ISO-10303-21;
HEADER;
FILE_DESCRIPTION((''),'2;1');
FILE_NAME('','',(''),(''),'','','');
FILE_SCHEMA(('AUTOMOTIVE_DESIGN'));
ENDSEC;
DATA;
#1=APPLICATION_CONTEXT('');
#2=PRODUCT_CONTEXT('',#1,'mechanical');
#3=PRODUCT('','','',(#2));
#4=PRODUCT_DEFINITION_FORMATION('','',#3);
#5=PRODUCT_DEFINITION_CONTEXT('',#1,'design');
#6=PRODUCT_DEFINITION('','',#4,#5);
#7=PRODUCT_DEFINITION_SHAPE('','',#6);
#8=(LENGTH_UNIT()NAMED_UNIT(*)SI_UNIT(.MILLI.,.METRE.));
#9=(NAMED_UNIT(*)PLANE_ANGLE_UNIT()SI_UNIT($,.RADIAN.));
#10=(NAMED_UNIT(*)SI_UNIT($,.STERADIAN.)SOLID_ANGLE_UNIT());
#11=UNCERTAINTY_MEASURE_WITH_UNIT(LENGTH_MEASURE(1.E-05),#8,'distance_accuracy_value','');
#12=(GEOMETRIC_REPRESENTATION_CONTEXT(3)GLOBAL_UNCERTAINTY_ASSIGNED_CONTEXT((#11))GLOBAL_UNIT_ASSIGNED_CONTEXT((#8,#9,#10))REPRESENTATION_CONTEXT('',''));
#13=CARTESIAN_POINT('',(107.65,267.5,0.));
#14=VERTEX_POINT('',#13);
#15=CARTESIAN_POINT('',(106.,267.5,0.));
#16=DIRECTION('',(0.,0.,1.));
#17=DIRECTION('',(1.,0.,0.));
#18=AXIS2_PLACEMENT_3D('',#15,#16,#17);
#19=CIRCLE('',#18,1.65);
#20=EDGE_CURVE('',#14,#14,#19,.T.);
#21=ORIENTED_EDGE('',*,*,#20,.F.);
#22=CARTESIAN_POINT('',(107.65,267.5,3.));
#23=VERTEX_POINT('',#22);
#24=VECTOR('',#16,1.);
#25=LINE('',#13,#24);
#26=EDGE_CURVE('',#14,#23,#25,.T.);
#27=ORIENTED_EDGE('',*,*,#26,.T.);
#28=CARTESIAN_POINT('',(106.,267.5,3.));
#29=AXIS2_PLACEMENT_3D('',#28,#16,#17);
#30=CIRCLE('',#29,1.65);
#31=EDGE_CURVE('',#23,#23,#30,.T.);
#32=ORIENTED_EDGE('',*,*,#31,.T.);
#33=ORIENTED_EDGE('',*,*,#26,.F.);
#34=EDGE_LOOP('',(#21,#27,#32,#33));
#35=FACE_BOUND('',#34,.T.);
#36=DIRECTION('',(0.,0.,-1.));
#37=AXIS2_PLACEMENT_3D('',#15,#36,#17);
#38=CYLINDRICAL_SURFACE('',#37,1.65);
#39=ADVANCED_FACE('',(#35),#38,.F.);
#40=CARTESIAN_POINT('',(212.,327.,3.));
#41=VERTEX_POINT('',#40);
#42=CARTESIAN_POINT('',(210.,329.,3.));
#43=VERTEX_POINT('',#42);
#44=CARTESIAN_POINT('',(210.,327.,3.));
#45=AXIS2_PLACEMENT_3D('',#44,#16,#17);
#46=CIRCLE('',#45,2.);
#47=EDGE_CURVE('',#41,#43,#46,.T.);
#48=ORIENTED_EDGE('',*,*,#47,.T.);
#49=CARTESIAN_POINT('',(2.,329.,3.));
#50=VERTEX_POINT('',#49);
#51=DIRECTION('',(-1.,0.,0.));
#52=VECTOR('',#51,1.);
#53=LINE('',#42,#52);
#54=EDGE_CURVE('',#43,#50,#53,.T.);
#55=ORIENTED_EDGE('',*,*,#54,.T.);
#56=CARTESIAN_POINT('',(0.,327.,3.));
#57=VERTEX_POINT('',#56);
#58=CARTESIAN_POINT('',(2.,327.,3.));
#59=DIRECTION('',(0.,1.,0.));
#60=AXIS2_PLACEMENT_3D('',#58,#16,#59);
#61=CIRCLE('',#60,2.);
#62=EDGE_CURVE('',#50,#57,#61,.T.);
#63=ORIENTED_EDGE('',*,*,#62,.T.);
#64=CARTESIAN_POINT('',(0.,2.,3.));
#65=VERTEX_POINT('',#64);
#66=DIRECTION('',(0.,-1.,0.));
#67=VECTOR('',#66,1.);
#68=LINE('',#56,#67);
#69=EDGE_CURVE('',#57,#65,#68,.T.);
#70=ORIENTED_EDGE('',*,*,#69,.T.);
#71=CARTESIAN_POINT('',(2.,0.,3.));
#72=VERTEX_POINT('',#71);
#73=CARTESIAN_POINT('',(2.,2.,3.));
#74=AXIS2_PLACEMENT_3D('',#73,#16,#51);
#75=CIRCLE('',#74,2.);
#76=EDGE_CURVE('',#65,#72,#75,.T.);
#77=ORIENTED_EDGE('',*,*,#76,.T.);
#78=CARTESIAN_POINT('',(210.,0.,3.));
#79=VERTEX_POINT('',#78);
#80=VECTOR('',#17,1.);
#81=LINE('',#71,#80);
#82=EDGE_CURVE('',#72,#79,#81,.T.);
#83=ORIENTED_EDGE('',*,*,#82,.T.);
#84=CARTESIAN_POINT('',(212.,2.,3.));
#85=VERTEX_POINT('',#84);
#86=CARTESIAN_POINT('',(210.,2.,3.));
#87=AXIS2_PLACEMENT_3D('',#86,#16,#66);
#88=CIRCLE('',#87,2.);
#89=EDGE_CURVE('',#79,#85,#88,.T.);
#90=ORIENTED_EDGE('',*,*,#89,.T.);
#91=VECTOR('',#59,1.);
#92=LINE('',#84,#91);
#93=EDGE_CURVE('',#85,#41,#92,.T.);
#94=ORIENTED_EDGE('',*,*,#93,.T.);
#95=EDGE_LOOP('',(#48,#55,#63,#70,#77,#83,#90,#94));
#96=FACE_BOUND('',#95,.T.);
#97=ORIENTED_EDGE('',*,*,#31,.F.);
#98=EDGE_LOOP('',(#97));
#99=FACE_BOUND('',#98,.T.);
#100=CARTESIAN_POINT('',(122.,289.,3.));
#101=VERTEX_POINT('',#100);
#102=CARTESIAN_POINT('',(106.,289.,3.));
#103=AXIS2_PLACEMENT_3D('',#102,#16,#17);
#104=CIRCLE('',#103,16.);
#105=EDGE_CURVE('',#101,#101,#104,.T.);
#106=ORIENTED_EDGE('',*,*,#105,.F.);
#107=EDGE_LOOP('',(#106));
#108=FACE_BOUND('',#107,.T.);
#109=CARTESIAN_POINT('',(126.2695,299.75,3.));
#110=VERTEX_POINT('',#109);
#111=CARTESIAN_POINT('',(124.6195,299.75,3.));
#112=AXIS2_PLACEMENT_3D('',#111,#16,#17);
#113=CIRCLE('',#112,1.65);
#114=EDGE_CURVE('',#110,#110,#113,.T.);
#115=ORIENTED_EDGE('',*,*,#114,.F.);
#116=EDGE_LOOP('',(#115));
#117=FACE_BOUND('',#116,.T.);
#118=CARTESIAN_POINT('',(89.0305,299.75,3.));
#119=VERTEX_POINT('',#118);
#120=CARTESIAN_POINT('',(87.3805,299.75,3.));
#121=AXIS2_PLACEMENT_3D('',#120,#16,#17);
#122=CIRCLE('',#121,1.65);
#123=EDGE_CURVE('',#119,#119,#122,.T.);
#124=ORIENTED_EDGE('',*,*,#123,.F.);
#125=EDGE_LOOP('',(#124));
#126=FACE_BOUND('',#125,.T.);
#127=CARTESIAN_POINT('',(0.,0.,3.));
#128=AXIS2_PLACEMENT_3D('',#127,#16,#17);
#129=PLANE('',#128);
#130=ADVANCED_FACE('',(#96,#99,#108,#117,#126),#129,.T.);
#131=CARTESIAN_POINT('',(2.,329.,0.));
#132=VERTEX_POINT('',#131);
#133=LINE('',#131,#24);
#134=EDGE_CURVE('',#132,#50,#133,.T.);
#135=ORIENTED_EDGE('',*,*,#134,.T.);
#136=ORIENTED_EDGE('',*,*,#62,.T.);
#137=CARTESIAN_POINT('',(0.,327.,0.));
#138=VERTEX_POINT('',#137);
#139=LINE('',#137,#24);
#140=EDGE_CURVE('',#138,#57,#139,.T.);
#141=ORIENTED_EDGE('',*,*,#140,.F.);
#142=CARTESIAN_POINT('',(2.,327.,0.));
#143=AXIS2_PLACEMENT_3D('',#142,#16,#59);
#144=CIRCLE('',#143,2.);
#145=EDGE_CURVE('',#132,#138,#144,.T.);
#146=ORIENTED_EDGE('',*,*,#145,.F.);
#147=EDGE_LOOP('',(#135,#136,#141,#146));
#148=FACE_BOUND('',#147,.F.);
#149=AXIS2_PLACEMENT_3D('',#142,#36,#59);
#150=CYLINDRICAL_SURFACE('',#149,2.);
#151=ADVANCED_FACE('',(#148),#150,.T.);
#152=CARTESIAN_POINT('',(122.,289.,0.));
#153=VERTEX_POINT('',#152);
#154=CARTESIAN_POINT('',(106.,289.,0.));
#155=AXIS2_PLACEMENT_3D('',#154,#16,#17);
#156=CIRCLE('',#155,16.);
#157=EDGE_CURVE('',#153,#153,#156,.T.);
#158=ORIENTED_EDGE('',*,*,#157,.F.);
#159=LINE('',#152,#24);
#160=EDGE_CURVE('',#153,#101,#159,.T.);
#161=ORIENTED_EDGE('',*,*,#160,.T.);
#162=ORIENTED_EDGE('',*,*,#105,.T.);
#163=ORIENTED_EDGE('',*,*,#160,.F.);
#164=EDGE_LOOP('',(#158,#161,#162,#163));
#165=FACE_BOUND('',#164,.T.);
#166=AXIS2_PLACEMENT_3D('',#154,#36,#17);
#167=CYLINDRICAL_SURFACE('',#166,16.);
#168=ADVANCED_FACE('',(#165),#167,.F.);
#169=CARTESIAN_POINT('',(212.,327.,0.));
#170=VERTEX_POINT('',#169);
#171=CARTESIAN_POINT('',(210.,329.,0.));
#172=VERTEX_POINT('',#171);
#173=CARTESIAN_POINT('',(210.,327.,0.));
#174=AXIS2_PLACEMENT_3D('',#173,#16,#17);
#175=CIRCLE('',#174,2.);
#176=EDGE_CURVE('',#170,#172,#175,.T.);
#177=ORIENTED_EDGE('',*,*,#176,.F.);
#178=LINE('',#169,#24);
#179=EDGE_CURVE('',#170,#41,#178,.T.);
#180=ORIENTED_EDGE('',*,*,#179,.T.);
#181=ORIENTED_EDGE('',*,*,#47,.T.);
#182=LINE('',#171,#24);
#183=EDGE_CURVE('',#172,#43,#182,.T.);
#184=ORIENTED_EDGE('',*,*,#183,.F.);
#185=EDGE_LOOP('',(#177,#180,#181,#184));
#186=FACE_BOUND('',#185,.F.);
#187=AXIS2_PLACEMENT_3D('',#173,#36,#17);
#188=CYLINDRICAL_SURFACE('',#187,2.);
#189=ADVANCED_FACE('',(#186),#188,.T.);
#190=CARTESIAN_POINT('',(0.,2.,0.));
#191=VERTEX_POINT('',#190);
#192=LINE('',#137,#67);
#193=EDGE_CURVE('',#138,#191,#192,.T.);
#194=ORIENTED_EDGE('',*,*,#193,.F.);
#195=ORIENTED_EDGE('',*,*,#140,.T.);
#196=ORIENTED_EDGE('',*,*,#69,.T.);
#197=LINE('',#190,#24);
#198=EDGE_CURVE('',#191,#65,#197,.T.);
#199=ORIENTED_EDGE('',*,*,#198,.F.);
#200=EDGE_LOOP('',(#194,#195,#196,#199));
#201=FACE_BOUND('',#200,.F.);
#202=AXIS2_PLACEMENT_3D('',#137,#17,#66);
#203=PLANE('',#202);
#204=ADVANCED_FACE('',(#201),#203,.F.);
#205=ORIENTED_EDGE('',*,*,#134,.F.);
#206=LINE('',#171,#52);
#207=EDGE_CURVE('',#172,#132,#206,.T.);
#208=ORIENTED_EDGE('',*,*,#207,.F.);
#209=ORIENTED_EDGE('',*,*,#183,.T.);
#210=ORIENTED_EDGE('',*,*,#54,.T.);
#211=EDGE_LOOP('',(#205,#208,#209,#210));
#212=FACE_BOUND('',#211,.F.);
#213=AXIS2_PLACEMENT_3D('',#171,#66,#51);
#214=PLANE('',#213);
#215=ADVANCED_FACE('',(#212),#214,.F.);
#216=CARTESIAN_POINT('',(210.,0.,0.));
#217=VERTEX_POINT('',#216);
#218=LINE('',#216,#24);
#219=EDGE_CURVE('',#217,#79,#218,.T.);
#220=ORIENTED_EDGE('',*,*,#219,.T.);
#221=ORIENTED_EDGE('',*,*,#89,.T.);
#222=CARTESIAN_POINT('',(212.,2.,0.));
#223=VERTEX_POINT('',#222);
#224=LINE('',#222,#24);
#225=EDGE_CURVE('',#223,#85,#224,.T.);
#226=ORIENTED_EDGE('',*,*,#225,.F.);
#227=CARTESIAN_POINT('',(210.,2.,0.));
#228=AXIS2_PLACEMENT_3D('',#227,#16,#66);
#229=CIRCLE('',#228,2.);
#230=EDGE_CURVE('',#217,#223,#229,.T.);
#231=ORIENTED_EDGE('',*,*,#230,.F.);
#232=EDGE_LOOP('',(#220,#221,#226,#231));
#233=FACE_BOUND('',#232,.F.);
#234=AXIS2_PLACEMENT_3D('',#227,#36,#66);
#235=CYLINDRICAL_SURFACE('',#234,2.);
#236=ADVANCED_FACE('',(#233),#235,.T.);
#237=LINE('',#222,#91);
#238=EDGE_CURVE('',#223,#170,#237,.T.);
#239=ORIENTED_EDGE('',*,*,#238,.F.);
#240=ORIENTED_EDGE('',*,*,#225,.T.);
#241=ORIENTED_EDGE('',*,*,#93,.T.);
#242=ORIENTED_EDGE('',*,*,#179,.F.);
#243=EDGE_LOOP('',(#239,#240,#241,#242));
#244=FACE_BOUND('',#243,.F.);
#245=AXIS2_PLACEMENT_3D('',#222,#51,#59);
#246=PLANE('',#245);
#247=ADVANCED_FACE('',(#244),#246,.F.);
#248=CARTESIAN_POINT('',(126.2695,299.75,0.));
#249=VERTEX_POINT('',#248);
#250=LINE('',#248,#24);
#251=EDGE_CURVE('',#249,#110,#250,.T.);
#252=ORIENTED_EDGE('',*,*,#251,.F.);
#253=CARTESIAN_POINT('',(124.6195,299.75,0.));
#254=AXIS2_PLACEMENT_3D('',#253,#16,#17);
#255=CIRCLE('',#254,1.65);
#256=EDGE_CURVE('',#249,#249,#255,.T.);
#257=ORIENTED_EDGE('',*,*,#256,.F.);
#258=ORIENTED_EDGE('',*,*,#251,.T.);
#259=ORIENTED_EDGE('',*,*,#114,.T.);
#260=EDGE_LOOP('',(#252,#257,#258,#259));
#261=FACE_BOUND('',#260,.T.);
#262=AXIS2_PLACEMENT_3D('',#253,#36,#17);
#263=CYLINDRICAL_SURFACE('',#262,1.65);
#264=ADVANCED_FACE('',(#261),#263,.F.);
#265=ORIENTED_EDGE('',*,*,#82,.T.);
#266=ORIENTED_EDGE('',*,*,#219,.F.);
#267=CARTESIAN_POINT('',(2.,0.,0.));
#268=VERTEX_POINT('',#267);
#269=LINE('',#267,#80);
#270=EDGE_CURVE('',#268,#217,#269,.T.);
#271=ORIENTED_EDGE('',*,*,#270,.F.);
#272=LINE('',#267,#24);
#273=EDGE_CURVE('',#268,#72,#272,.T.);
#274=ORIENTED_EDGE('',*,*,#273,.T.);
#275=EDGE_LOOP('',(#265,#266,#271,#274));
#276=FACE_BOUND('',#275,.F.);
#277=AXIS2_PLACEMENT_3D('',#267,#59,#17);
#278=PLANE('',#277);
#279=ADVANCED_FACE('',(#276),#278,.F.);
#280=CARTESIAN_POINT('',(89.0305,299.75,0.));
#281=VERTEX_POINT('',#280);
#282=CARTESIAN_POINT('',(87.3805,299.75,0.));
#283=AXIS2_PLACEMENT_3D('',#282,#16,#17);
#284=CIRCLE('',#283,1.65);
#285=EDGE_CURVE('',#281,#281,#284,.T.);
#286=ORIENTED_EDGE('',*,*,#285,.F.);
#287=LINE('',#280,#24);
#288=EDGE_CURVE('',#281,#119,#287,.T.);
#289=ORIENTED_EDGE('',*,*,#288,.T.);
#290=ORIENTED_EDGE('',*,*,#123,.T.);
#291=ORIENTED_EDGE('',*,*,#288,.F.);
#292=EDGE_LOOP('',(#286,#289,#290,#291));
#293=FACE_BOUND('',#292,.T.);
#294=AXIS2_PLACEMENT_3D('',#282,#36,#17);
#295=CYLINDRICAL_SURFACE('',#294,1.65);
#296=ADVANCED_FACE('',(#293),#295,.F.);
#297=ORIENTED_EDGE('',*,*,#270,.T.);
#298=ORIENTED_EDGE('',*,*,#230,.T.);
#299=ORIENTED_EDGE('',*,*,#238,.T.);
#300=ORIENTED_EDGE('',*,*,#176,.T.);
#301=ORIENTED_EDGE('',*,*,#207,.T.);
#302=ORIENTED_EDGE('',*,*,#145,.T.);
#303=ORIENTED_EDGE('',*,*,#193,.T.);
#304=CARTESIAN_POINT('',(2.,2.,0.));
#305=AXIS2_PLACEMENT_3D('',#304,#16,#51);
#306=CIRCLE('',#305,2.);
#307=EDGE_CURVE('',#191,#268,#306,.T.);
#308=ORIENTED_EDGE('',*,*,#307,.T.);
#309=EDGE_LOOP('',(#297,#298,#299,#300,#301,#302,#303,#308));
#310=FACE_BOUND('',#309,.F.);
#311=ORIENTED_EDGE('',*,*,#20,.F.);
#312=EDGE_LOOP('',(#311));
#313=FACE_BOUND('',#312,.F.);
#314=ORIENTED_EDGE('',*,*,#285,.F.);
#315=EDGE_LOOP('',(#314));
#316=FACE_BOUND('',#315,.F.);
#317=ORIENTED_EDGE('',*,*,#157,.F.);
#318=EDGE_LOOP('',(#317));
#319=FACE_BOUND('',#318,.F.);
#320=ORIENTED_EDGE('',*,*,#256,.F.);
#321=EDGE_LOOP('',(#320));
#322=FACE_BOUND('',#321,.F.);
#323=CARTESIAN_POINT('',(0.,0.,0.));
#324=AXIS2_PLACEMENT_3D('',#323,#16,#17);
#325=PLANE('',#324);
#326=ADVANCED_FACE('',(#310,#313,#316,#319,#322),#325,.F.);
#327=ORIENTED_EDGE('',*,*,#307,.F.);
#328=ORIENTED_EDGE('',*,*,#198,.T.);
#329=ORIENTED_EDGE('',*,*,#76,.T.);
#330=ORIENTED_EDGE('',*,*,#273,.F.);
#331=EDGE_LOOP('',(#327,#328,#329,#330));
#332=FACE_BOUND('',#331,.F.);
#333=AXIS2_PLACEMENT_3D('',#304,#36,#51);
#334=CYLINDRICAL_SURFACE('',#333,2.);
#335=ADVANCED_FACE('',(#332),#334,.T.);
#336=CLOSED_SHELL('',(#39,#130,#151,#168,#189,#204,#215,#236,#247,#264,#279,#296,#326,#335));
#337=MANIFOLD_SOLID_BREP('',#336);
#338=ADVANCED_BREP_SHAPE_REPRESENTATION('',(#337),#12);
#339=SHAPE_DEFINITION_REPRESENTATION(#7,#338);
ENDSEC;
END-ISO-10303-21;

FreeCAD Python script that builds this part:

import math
import FreeCAD as App
import Part
import Sketcher

V = App.Vector
Q = App.Units.Quantity

doc = App.newDocument("Part")
body = doc.addObject("PartDesign::Body", "Body")

sketch1 = body.newObject("Sketcher::SketchObject", "Sketch")
sketch1.AttachmentSupport = (doc.getObject("XY_Plane"), [""])
sketch1.MapMode = "FlatFace"
sketch1.addGeometry([
    Part.ArcOfCircle(Part.Circle(V(2, 2, 0), V(0, 0, 1), 2), math.radians(180), math.radians(270)),
    Part.LineSegment(V(2, 0, 0), V(210, 0, 0)),
    Part.ArcOfCircle(Part.Circle(V(210, 2, 0), V(0, 0, 1), 2), math.radians(-90), math.radians(0)),
    Part.LineSegment(V(212, 2, 0), V(212, 327, 0)),
    Part.ArcOfCircle(Part.Circle(V(210, 327, 0), V(0, 0, 1), 2), math.radians(0), math.radians(90)),
    Part.LineSegment(V(210, 329, 0), V(2, 329, 0)),
    Part.ArcOfCircle(Part.Circle(V(2, 327, 0), V(0, 0, 1), 2), math.radians(90), math.radians(180)),
    Part.LineSegment(V(0, 327, 0), V(0, 2, 0)),
], False)
sketch1.addConstraint([
    Sketcher.Constraint("Tangent", 0, 2, 1, 1),
    Sketcher.Constraint("Tangent", 1, 2, 2, 1),
    Sketcher.Constraint("Tangent", 2, 2, 3, 1),
    Sketcher.Constraint("Tangent", 3, 2, 4, 1),
    Sketcher.Constraint("Tangent", 4, 2, 5, 1),
    Sketcher.Constraint("Tangent", 5, 2, 6, 1),
    Sketcher.Constraint("Tangent", 6, 2, 7, 1),
    Sketcher.Constraint("Tangent", 7, 2, 0, 1),
    Sketcher.Constraint("Horizontal", 1),
    Sketcher.Constraint("Vertical", 3),
    Sketcher.Constraint("Horizontal", 5),
    Sketcher.Constraint("Vertical", 7),
    Sketcher.Constraint("Equal", 0, 2),
    Sketcher.Constraint("Equal", 2, 4),
    Sketcher.Constraint("Equal", 4, 6),
    Sketcher.Constraint("PointOnObject", 0, 2, -1),
    Sketcher.Constraint("PointOnObject", 6, 2, -2),
    Sketcher.Constraint("Radius", 0, Q("2 mm")),
    Sketcher.Constraint("DistanceX", -1, 1, 2, 2, Q("212 mm")),
    Sketcher.Constraint("DistanceY", -1, 1, 4, 2, Q("329 mm")),
])
pad1 = body.newObject("PartDesign::Pad", "Pad")
pad1.Profile = sketch1
pad1.Length = 3

sketch2 = body.newObject("Sketcher::SketchObject", "Sketch001")
sketch2.AttachmentSupport = (doc.getObject("XY_Plane"), [""])
sketch2.MapMode = "FlatFace"
sketch2.addGeometry([
    Part.Circle(V(106, 289, 0), V(0, 0, 1), 16),
    Part.Circle(V(106, 267.5, 0), V(0, 0, 1), 1.6),
    Part.Circle(V(124.6, 299.8, 0), V(0, 0, 1), 1.6),
    Part.Circle(V(87.4, 299.8, 0), V(0, 0, 1), 1.6),
], False)
sketch2.addConstraint([
    Sketcher.Constraint("Equal", 1, 2),
    Sketcher.Constraint("Equal", 2, 3),
    Sketcher.Constraint("Horizontal", 2, 3, 3, 3),
    Sketcher.Constraint("Vertical", 0, 3, 1, 3),
    Sketcher.Constraint("Diameter", 0, Q("32 mm")),
    Sketcher.Constraint("Diameter", 1, Q("3.3 mm")),
    Sketcher.Constraint("DistanceY", 1, 3, 0, 3, Q("21.5 mm")),
    Sketcher.Constraint("DistanceX", -1, 1, 0, 3, Q("106 mm")),
    Sketcher.Constraint("DistanceY", -1, 1, 0, 3, Q("289 mm")),
    Sketcher.Constraint("DistanceY", -1, 1, 2, 3, Q("299.75 mm")),
    Sketcher.Constraint("DistanceX", 3, 3, 2, 3, Q("37.239 mm")),
    Sketcher.Constraint("DistanceX", -1, 1, 2, 3, Q("124.6195 mm")),
])
pocket1 = body.newObject("PartDesign::Pocket", "Pocket")
pocket1.Profile = sketch2
pocket1.Length = 3
pocket1.Reversed = True

doc.recompute()
